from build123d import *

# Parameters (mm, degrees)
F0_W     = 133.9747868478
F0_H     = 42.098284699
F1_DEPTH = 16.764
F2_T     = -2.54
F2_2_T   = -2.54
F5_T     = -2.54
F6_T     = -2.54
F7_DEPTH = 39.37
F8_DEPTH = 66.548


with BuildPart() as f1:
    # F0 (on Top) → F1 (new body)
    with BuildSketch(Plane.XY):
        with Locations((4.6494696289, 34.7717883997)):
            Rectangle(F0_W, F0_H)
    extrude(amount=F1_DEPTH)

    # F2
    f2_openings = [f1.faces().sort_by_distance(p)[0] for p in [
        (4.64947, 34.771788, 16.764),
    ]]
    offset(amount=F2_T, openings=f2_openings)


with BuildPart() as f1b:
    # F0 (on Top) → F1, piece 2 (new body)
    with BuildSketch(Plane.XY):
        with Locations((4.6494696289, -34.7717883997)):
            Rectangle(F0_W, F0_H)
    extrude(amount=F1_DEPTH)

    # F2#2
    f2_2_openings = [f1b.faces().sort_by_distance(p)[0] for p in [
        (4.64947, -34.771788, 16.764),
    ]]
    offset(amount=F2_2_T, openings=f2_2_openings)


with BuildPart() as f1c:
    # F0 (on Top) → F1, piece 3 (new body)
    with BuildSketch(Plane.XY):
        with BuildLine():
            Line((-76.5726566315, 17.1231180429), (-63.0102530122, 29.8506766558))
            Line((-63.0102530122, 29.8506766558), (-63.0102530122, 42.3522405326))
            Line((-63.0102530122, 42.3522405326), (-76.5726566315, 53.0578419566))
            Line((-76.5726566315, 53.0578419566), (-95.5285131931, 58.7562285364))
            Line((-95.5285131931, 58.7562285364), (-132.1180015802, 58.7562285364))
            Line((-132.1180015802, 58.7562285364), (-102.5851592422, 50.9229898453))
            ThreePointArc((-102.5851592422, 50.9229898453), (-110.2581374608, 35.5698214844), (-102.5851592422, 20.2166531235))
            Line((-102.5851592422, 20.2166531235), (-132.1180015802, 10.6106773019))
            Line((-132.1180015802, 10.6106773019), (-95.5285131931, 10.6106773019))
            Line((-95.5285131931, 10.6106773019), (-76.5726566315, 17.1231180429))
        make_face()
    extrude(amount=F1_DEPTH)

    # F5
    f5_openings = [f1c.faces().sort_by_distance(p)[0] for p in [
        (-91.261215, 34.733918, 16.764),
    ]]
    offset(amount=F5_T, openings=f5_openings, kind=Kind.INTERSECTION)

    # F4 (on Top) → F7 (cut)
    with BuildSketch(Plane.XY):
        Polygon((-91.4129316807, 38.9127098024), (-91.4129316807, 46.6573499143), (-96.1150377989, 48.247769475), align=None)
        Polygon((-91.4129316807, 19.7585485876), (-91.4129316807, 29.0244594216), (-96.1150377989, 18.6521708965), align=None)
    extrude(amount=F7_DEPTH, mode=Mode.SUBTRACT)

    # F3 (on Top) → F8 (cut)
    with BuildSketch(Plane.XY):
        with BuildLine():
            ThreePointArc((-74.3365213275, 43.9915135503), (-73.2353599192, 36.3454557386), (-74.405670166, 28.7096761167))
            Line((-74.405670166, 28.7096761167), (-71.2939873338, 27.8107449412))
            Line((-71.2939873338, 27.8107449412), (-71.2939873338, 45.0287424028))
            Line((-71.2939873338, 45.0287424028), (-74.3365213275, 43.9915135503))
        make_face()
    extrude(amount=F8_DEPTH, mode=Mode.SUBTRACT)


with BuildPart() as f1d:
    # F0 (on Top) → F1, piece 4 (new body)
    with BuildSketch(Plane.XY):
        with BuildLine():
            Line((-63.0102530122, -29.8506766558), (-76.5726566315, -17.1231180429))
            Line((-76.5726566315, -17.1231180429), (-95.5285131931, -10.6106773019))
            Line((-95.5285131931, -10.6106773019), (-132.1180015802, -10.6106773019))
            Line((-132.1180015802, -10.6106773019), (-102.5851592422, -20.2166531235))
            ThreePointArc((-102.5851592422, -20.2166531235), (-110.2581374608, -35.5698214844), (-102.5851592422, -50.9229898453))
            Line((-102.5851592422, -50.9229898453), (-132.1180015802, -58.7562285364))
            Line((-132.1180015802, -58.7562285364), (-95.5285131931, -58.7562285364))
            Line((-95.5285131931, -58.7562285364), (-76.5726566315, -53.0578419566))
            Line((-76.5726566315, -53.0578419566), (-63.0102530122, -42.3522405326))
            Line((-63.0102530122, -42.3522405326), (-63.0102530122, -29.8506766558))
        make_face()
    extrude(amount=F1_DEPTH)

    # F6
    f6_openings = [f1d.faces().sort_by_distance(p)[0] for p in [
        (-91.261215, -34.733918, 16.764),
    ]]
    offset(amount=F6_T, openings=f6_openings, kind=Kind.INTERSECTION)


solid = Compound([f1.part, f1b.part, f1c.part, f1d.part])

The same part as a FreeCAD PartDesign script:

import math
import FreeCAD as App
import Part
import Sketcher
Q = App.Units.Quantity


def faces_at(feature, points):
    """Names of the faces that lie closest to the given points."""
    faces = feature.Shape.Faces
    near = lambda p: min(range(len(faces)), key=lambda i: faces[i].distToShape(Part.Vertex(*p))[0])
    return sorted({f"Face{near(p) + 1}" for p in points})

doc = App.newDocument("Part")
body = doc.addObject("PartDesign::Body", "Body")

# Sketch on XY plane
sketch1 = body.newObject("Sketcher::SketchObject", "Sketch")
sketch1.AttachmentSupport = (doc.getObject("XY_Plane"), [""])
sketch1.MapMode = "FlatFace"
sketch1.addGeometry([
    Part.LineSegment(App.Vector(-62, 56, 0), App.Vector(-62, 14, 0)),
    Part.LineSegment(App.Vector(-62, 14, 0), App.Vector(72, 14, 0)),
    Part.LineSegment(App.Vector(72, 14, 0), App.Vector(72, 56, 0)),
    Part.LineSegment(App.Vector(72, 56, 0), App.Vector(-62, 56, 0)),
], False)
sketch1.addConstraint([
    Sketcher.Constraint("Coincident", 0, 2, 1, 1),
    Sketcher.Constraint("Coincident", 1, 2, 2, 1),
    Sketcher.Constraint("Coincident", 2, 2, 3, 1),
    Sketcher.Constraint("Coincident", 3, 2, 0, 1),
    Sketcher.Constraint("Vertical", 0),
    Sketcher.Constraint("Horizontal", 1),
    Sketcher.Constraint("Vertical", 2),
    Sketcher.Constraint("Horizontal", 3),
    Sketcher.Constraint("DistanceX", 1, 1, 1, 2, Q("133.974787 mm")),
    Sketcher.Constraint("DistanceY", 0, 2, 0, 1, Q("42.098285 mm")),
    Sketcher.Constraint("DistanceY", -1, 1, 2, 2, Q("55.820931 mm")),
    Sketcher.Constraint("DistanceX", 0, 2, -1, 1, Q("62.337924 mm")),
])
pad1 = body.newObject("PartDesign::Pad", "Pad")
pad1.Profile = sketch1
pad1.Length = Q("0.66 in")
doc.recompute()

thickness = body.newObject("PartDesign::Thickness", "Thickness")
thickness.Base = (pad1, faces_at(pad1, [(4.649, 34.772, 16.764)]))
thickness.Value = Q("0.1 in")
thickness.Reversed = True
thickness.Join = "Arc"
body2 = doc.addObject("PartDesign::Body", "Body001")

# Sketch on XY plane
sketch2 = body2.newObject("Sketcher::SketchObject", "Sketch001")
sketch2.AttachmentSupport = (doc.getObject("XY_Plane001"), [""])
sketch2.MapMode = "FlatFace"
sketch2.addGeometry([
    Part.LineSegment(App.Vector(-62, -14, 0), App.Vector(-62, -56, 0)),
    Part.LineSegment(App.Vector(-62, -56, 0), App.Vector(72, -56, 0)),
    Part.LineSegment(App.Vector(72, -56, 0), App.Vector(72, -14, 0)),
    Part.LineSegment(App.Vector(72, -14, 0), App.Vector(-62, -14, 0)),
], False)
sketch2.addConstraint([
    Sketcher.Constraint("Coincident", 0, 2, 1, 1),
    Sketcher.Constraint("Coincident", 1, 2, 2, 1),
    Sketcher.Constraint("Coincident", 2, 2, 3, 1),
    Sketcher.Constraint("Coincident", 3, 2, 0, 1),
    Sketcher.Constraint("Vertical", 0),
    Sketcher.Constraint("Horizontal", 1),
    Sketcher.Constraint("Vertical", 2),
    Sketcher.Constraint("Horizontal", 3),
    Sketcher.Constraint("DistanceX", 1, 1, 1, 2, Q("133.974787 mm")),
    Sketcher.Constraint("DistanceY", 0, 2, 0, 1, Q("42.098285 mm")),
    Sketcher.Constraint("DistanceY", 0, 2, -1, 1, Q("55.820931 mm")),
    Sketcher.Constraint("DistanceX", 0, 2, -1, 1, Q("62.337924 mm")),
])
pad2 = body2.newObject("PartDesign::Pad", "Pad001")
pad2.Profile = sketch2
pad2.Length = Q("0.66 in")
doc.recompute()

thickness2 = body2.newObject("PartDesign::Thickness", "Thickness001")
thickness2.Base = (pad2, faces_at(pad2, [(4.649, -34.772, 16.764)]))
thickness2.Value = Q("0.1 in")
thickness2.Reversed = True
thickness2.Join = "Arc"
body3 = doc.addObject("PartDesign::Body", "Body002")

# Sketch on XY plane
sketch3 = body3.newObject("Sketcher::SketchObject", "Sketch002")
sketch3.AttachmentSupport = (doc.getObject("XY_Plane002"), [""])
sketch3.MapMode = "FlatFace"
sketch3.addGeometry([
    Part.LineSegment(App.Vector(-77, 17, 0), App.Vector(-63, 30, 0)),  # 0
    Part.LineSegment(App.Vector(-63, 30, 0), App.Vector(-63, 42, 0)),  # 1
    Part.LineSegment(App.Vector(-63, 42, 0), App.Vector(-77, 53, 0)),  # 2
    Part.LineSegment(App.Vector(-77, 53, 0), App.Vector(-96, 59, 0)),  # 3
    Part.LineSegment(App.Vector(-96, 59, 0), App.Vector(-132, 59, 0)),  # 4
    Part.LineSegment(App.Vector(-132, 59, 0), App.Vector(-103, 51, 0)),  # 5
    Part.ArcOfCircle(Part.Circle(App.Vector(-91, 36, 0), App.Vector(0, 0, 1), 19), math.radians(127), math.radians(233)),  # 6
    Part.LineSegment(App.Vector(-103, 20, 0), App.Vector(-132, 11, 0)),  # 7
    Part.LineSegment(App.Vector(-132, 11, 0), App.Vector(-96, 11, 0)),  # 8
    Part.LineSegment(App.Vector(-96, 11, 0), App.Vector(-77, 17, 0)),  # 9
], False)
sketch3.addConstraint([
    Sketcher.Constraint("Coincident", 0, 2, 1, 1),
    Sketcher.Constraint("Coincident", 1, 2, 2, 1),
    Sketcher.Constraint("Coincident", 2, 2, 3, 1),
    Sketcher.Constraint("Coincident", 3, 2, 4, 1),
    Sketcher.Constraint("Coincident", 4, 2, 5, 1),
    Sketcher.Constraint("Coincident", 5, 2, 6, 1),
    Sketcher.Constraint("Coincident", 6, 2, 7, 1),
    Sketcher.Constraint("Coincident", 7, 2, 8, 1),
    Sketcher.Constraint("Coincident", 8, 2, 9, 1),
    Sketcher.Constraint("Coincident", 9, 2, 0, 1),
    Sketcher.Constraint("Vertical", 1),
    Sketcher.Constraint("Horizontal", 4),
    Sketcher.Constraint("Horizontal", 8),
    Sketcher.Constraint("Vertical", 5, 2, 6, 2),
    Sketcher.Constraint("Vertical", 4, 2, 7, 2),
    Sketcher.Constraint("Vertical", 3, 2, 8, 2),
    Sketcher.Constraint("Vertical", 2, 2, 9, 2),
    Sketcher.Constraint("Radius", 6, Q("19.196873 mm")),
    Sketcher.Constraint("DistanceX", 4, 2, 4, 1, Q("36.589488 mm")),
    Sketcher.Constraint("DistanceX", 4, 2, -1, 1, Q("132.118002 mm")),
    Sketcher.Constraint("DistanceY", 1, 2, 2, 2, Q("10.705601 mm")),
    Sketcher.Constraint("DistanceY", 8, 2, 0, 2, Q("19.239999 mm")),
    Sketcher.Constraint("Distance", 0, Q("18.599181 mm")),
    Sketcher.Constraint("Distance", 2, Q("17.278562 mm")),
    Sketcher.Constraint("Distance", 3, Q("19.79384 mm")),
    Sketcher.Constraint("DistanceY", 1, 1, 1, 2, Q("12.501564 mm")),
    Sketcher.Constraint("DistanceY", -1, 1, 6, 3, Q("35.569821 mm")),
    Sketcher.Constraint("DistanceY", -1, 1, 1, 2, Q("42.352241 mm")),
    Sketcher.Constraint("DistanceY", -1, 1, 3, 2, Q("58.756229 mm")),
    Sketcher.Constraint("DistanceX", 5, 2, -1, 1, Q("102.585159 mm")),
    Sketcher.Constraint("DistanceY", -1, 1, 5, 2, Q("50.92299 mm")),
])
pad3 = body3.newObject("PartDesign::Pad", "Pad002")
pad3.Profile = sketch3
pad3.Length = Q("0.66 in")
doc.recompute()

thickness3 = body3.newObject("PartDesign::Thickness", "Thickness002")
thickness3.Base = (pad3, faces_at(pad3, [(-97.564, 34.683, 16.764)]))
thickness3.Value = Q("0.1 in")
thickness3.Reversed = True
thickness3.Join = "Intersection"

# Sketch on XY plane
sketch4 = body3.newObject("Sketcher::SketchObject", "Sketch003")
sketch4.AttachmentSupport = (doc.getObject("XY_Plane002"), [""])
sketch4.MapMode = "FlatFace"
sketch4.addGeometry([
    Part.LineSegment(App.Vector(-91.4, 38.9, 0), App.Vector(-91.4, 46.7, 0)),  # 0
    Part.LineSegment(App.Vector(-91.4, 46.7, 0), App.Vector(-96.1, 48.2, 0)),  # 1
    Part.LineSegment(App.Vector(-96.1, 48.2, 0), App.Vector(-91.4, 38.9, 0)),  # 2
    Part.LineSegment(App.Vector(-91.4, 19.8, 0), App.Vector(-91.4, 29, 0)),  # 3
    Part.LineSegment(App.Vector(-91.4, 29, 0), App.Vector(-96.1, 18.7, 0)),  # 4
    Part.LineSegment(App.Vector(-96.1, 18.7, 0), App.Vector(-91.4, 19.8, 0)),  # 5
], False)
sketch4.addConstraint([
    Sketcher.Constraint("Coincident", 0, 2, 1, 1),
    Sketcher.Constraint("Coincident", 1, 2, 2, 1),
    Sketcher.Constraint("Coincident", 2, 2, 0, 1),
    Sketcher.Constraint("Coincident", 3, 2, 4, 1),
    Sketcher.Constraint("Coincident", 4, 2, 5, 1),
    Sketcher.Constraint("Coincident", 5, 2, 3, 1),
    Sketcher.Constraint("Vertical", 0),
    Sketcher.Constraint("Vertical", 3),
    Sketcher.Constraint("Vertical", 2, 2, 3, 2),
    Sketcher.Constraint("Vertical", 1, 2, 4, 2),
    Sketcher.Constraint("DistanceY", 0, 1, 0, 2, Q("7.74464 mm")),
    Sketcher.Constraint("DistanceY", 3, 1, 3, 2, Q("9.265911 mm")),
    Sketcher.Constraint("DistanceY", 4, 2, 1, 2, Q("29.595599 mm")),
    Sketcher.Constraint("DistanceY", 5, 2, 0, 2, Q("26.898801 mm")),
    Sketcher.Constraint("DistanceX", 0, 2, -1, 1, Q("91.412932 mm")),
    Sketcher.Constraint("DistanceY", -1, 1, 0, 2, Q("46.65735 mm")),
    Sketcher.Constraint("DistanceY", -1, 1, 1, 2, Q("48.247769 mm")),
    Sketcher.Constraint("Distance", 1, Q("4.963793 mm")),
])
pocket1 = body3.newObject("PartDesign::Pocket", "Pocket")
pocket1.Profile = sketch4
pocket1.Length = Q("1.55 in")
pocket1.Reversed = True

# Sketch on XY plane
sketch5 = body3.newObject("Sketcher::SketchObject", "Sketch004")
sketch5.AttachmentSupport = (doc.getObject("XY_Plane002"), [""])
sketch5.MapMode = "FlatFace"
sketch5.addGeometry([
    Part.ArcOfCircle(Part.Circle(App.Vector(-99.5, 36.5, 0), App.Vector(0, 0, 1), 26.3), math.radians(-17), math.radians(17)),
    Part.LineSegment(App.Vector(-74.4, 28.7, 0), App.Vector(-71.3, 27.8, 0)),
    Part.LineSegment(App.Vector(-71.3, 27.8, 0), App.Vector(-71.3, 45, 0)),
    Part.LineSegment(App.Vector(-71.3, 45, 0), App.Vector(-74.3, 44, 0)),
], False)
sketch5.addConstraint([
    Sketcher.Constraint("Coincident", 0, 1, 1, 1),
    Sketcher.Constraint("Coincident", 1, 2, 2, 1),
    Sketcher.Constraint("Coincident", 2, 2, 3, 1),
    Sketcher.Constraint("Coincident", 3, 2, 0, 2),
    Sketcher.Constraint("Vertical", 2),
    Sketcher.Constraint("Radius", 0, Q("26.271138 mm")),
    Sketcher.Constraint("DistanceY", 2, 1, 2, 2, Q("17.217997 mm")),
    Sketcher.Constraint("DistanceX", 0, 3, -1, 1, Q("99.506229 mm")),
    Sketcher.Constraint("DistanceY", -1, 1, 0, 3, Q("36.464329 mm")),
    Sketcher.Constraint("DistanceX", 0, 1, -1, 1, Q("74.40567 mm")),
    Sketcher.Constraint("DistanceX", 3, 2, -1, 1, Q("74.336521 mm")),
    Sketcher.Constraint("DistanceY", 1, 2, 0, 1, Q("0.898931 mm")),
    Sketcher.Constraint("DistanceX", 0, 3, 1, 2, Q("28.212242 mm")),
])
pocket2 = body3.newObject("PartDesign::Pocket", "Pocket001")
pocket2.Profile = sketch5
pocket2.Length = Q("2.62 in")
pocket2.Reversed = True
body4 = doc.addObject("PartDesign::Body", "Body003")

# Sketch on XY plane
sketch6 = body4.newObject("Sketcher::SketchObject", "Sketch005")
sketch6.AttachmentSupport = (doc.getObject("XY_Plane003"), [""])
sketch6.MapMode = "FlatFace"
sketch6.addGeometry([
    Part.LineSegment(App.Vector(-63, -30, 0), App.Vector(-77, -17, 0)),  # 0
    Part.LineSegment(App.Vector(-77, -17, 0), App.Vector(-96, -11, 0)),  # 1
    Part.LineSegment(App.Vector(-96, -11, 0), App.Vector(-132, -11, 0)),  # 2
    Part.LineSegment(App.Vector(-132, -11, 0), App.Vector(-103, -20, 0)),  # 3
    Part.ArcOfCircle(Part.Circle(App.Vector(-91, -36, 0), App.Vector(0, 0, 1), 19), math.radians(127), math.radians(233)),  # 4
    Part.LineSegment(App.Vector(-103, -51, 0), App.Vector(-132, -59, 0)),  # 5
    Part.LineSegment(App.Vector(-132, -59, 0), App.Vector(-96, -59, 0)),  # 6
    Part.LineSegment(App.Vector(-96, -59, 0), App.Vector(-77, -53, 0)),  # 7
    Part.LineSegment(App.Vector(-77, -53, 0), App.Vector(-63, -42, 0)),  # 8
    Part.LineSegment(App.Vector(-63, -42, 0), App.Vector(-63, -30, 0)),  # 9
], False)
sketch6.addConstraint([
    Sketcher.Constraint("Coincident", 0, 2, 1, 1),
    Sketcher.Constraint("Coincident", 1, 2, 2, 1),
    Sketcher.Constraint("Coincident", 2, 2, 3, 1),
    Sketcher.Constraint("Coincident", 3, 2, 4, 1),
    Sketcher.Constraint("Coincident", 4, 2, 5, 1),
    Sketcher.Constraint("Coincident", 5, 2, 6, 1),
    Sketcher.Constraint("Coincident", 6, 2, 7, 1),
    Sketcher.Constraint("Coincident", 7, 2, 8, 1),
    Sketcher.Constraint("Coincident", 8, 2, 9, 1),
    Sketcher.Constraint("Coincident", 9, 2, 0, 1),
    Sketcher.Constraint("Horizontal", 2),
    Sketcher.Constraint("Horizontal", 6),
    Sketcher.Constraint("Vertical", 9),
    Sketcher.Constraint("Vertical", 3, 2, 4, 2),
    Sketcher.Constraint("Vertical", 2, 2, 5, 2),
    Sketcher.Constraint("Vertical", 1, 2, 6, 2),
    Sketcher.Constraint("Vertical", 0, 2, 7, 2),
    Sketcher.Constraint("Radius", 4, Q("19.196873 mm")),
    Sketcher.Constraint("DistanceX", 2, 2, 2, 1, Q("36.589488 mm")),
    Sketcher.Constraint("DistanceX", 2, 2, -1, 1, Q("132.118002 mm")),
    Sketcher.Constraint("DistanceY", 7, 2, 8, 2, Q("10.705601 mm")),
    Sketcher.Constraint("DistanceY", 9, 2, 1, 2, Q("19.239999 mm")),
    Sketcher.Constraint("Distance", 0, Q("18.599181 mm")),
    Sketcher.Constraint("Distance", 7, Q("19.79384 mm")),
    Sketcher.Constraint("Distance", 8, Q("17.278562 mm")),
    Sketcher.Constraint("DistanceY", 9, 1, 9, 2, Q("12.501564 mm")),
    Sketcher.Constraint("DistanceY", 4, 3, -1, 1, Q("35.569821 mm")),
    Sketcher.Constraint("DistanceY", 0, 2, -1, 1, Q("17.123118 mm")),
    Sketcher.Constraint("DistanceX", 3, 2, -1, 1, Q("102.585159 mm")),
    Sketcher.Constraint("DistanceY", 4, 2, -1, 1, Q("50.92299 mm")),
    Sketcher.Constraint("DistanceY", 5, 2, -1, 1, Q("58.756229 mm")),
])
pad4 = body4.newObject("PartDesign::Pad", "Pad003")
pad4.Profile = sketch6
pad4.Length = Q("0.66 in")
doc.recompute()

thickness4 = body4.newObject("PartDesign::Thickness", "Thickness003")
thickness4.Base = (pad4, faces_at(pad4, [(-97.564, -34.683, 16.764)]))
thickness4.Value = Q("0.1 in")
thickness4.Reversed = True
thickness4.Join = "Intersection"

doc.recompute()
